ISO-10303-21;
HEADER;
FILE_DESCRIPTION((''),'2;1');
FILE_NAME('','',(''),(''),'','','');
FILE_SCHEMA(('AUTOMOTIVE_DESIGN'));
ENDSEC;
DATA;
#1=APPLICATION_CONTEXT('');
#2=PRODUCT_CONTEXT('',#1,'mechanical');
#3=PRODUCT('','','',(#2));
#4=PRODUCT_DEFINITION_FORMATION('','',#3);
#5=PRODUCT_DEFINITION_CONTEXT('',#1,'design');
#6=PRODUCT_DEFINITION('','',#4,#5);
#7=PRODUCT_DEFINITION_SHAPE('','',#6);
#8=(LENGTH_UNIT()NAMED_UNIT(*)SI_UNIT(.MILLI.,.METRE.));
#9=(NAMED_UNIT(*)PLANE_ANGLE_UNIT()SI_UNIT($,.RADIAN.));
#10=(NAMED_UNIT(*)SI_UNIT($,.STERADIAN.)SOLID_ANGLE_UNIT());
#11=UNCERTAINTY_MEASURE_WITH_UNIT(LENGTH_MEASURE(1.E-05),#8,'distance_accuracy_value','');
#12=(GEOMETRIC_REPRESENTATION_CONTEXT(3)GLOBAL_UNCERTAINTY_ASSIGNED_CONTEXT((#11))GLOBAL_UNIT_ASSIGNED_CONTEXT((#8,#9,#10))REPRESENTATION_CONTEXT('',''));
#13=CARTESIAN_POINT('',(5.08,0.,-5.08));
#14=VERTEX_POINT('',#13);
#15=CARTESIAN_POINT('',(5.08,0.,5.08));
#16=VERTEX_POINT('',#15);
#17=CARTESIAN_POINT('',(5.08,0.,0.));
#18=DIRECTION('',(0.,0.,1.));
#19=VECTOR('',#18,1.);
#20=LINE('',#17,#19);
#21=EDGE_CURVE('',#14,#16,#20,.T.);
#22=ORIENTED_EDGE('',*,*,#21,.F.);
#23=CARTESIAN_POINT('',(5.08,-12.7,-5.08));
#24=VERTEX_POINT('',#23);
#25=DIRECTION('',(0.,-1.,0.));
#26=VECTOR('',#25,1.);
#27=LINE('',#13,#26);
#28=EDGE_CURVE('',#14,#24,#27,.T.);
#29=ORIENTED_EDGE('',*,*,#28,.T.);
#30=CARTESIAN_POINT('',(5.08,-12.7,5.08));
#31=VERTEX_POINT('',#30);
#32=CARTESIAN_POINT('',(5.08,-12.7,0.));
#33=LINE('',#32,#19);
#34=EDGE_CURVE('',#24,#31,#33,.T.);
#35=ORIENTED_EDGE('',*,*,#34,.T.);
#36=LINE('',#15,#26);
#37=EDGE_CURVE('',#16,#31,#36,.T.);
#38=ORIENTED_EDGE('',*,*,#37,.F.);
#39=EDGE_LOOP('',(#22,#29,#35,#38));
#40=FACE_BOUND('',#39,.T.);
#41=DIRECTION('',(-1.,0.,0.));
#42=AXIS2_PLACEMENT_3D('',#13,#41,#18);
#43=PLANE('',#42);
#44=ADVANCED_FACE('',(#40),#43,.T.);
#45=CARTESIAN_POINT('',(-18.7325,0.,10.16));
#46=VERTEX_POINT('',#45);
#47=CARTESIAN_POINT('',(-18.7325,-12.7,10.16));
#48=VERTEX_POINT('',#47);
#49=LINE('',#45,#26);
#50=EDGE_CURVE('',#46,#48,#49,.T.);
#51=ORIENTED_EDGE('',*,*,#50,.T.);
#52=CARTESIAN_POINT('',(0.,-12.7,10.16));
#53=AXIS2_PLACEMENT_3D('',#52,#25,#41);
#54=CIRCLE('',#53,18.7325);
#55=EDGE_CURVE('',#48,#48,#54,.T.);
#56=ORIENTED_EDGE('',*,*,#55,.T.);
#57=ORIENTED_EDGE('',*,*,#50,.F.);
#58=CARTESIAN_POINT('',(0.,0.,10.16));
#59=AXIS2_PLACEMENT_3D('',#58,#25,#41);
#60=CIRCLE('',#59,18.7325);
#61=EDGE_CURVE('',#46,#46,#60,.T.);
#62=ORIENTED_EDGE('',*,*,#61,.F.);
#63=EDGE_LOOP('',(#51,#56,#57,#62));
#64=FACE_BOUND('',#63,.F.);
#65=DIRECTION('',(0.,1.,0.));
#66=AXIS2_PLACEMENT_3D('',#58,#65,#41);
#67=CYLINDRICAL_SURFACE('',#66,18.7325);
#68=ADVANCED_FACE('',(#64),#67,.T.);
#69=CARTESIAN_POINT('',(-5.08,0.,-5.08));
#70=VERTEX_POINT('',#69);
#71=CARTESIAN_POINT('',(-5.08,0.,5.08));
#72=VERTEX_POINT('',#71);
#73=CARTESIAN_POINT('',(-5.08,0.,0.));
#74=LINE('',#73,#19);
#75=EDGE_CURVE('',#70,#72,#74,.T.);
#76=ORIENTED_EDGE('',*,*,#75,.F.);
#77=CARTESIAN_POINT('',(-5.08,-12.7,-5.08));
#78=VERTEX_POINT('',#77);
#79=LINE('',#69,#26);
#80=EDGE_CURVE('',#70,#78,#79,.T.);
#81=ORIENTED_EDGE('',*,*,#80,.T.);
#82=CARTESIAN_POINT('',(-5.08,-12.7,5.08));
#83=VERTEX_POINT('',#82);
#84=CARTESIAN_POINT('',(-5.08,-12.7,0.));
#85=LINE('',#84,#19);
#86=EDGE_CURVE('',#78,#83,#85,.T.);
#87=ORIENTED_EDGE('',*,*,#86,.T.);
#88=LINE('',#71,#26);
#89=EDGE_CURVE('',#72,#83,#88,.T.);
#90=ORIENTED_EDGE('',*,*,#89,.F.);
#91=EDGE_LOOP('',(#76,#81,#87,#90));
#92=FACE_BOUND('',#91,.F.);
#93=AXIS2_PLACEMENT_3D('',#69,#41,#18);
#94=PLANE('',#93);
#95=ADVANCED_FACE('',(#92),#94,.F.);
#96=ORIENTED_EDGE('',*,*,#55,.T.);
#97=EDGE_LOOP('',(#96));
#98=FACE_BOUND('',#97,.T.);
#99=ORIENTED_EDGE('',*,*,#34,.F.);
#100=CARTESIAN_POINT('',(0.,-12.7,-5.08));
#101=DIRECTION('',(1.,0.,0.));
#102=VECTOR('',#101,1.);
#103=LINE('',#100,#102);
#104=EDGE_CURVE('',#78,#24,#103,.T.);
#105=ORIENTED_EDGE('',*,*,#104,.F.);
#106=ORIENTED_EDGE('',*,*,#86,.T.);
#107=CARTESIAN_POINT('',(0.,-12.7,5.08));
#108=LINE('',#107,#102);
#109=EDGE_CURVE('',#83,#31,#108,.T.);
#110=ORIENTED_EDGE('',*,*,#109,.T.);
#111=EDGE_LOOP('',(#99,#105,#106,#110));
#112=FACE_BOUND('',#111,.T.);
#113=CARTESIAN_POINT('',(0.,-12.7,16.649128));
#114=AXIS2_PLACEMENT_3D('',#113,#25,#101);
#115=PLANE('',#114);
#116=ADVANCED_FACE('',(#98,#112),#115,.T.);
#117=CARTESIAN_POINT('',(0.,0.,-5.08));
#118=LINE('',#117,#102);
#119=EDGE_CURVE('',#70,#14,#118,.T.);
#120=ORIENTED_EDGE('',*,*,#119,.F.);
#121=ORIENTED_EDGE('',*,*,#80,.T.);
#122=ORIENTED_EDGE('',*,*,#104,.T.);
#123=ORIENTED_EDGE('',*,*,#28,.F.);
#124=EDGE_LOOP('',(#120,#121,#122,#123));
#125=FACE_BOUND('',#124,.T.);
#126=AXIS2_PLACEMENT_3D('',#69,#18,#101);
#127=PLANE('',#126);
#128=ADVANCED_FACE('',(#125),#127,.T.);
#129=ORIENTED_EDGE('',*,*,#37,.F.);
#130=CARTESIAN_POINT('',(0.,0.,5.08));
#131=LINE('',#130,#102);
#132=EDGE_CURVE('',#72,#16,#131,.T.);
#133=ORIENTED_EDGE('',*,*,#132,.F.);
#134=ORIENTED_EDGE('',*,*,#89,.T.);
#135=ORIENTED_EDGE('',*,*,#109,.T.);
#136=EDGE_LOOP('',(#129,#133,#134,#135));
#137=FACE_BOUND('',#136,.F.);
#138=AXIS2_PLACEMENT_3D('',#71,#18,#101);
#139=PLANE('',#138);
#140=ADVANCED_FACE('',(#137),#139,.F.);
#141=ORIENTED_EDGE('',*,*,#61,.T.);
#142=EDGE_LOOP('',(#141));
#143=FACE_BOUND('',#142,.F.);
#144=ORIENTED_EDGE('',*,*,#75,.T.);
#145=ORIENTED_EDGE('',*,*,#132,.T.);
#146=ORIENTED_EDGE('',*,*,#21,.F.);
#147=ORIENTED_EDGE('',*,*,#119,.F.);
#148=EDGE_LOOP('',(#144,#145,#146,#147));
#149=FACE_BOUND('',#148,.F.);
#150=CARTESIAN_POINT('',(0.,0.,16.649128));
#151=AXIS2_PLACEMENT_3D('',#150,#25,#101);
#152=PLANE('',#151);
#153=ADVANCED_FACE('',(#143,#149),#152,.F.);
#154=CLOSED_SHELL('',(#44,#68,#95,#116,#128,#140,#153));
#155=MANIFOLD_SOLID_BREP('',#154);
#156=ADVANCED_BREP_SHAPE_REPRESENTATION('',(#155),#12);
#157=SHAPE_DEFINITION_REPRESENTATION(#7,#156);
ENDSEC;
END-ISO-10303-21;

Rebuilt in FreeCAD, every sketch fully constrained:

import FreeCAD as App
import Part
import Sketcher
Q = App.Units.Quantity


def add_polygon(sketch, points):
    """Adds a closed chain of lines whose ends are joined by coincident constraints."""
    first, n = sketch.GeometryCount, len(points)
    for a, b in zip(points, points[1:] + points[:1]):
        sketch.addGeometry(Part.LineSegment(App.Vector(*a, 0), App.Vector(*b, 0)), False)
    for i in range(n):
        sketch.addConstraint(Sketcher.Constraint("Coincident", first + i, 2, first + (i + 1) % n, 1))

doc = App.newDocument("Part")
params = doc.addObject("Spreadsheet::Sheet", "Params")
for row, (alias, value) in enumerate([
    ("sketch1_diameter", "1.475 in"),
    ("sketch1_width", "0.4 in"),
    ("pad1_length", "0.5 in"),
], start=1):
    params.set(f"A{row}", alias)
    params.set(f"B{row}", "=" + value)
    params.setAlias(f"B{row}", alias)

body = doc.addObject("PartDesign::Body", "Body")

sketch1 = body.newObject("Sketcher::SketchObject", "Sketch")
sketch1.AttachmentSupport = (doc.getObject("XZ_Plane"), [""])
sketch1.MapMode = "FlatFace"
sketch1.addGeometry(Part.Circle(App.Vector(0, 10.16, 0), App.Vector(0, 0, 1), 18.7325), False)
add_polygon(sketch1, [(5.08, -5.08), (-5.08, -5.08), (-5.08, 5.08), (5.08, 5.08)])
sketch1.addConstraint([
    Sketcher.Constraint("Horizontal", 1),
    Sketcher.Constraint("Vertical", 2),
    Sketcher.Constraint("Horizontal", 3),
    Sketcher.Constraint("Vertical", 4),
    Sketcher.Constraint("Symmetric", 1, 2, 3, 2, -1, 1),
    Sketcher.Constraint("PointOnObject", 0, 3, -2),
    Sketcher.Constraint("Equal", 3, 2),
    Sketcher.Constraint("Diameter", 0, Q("1.475 in")),
    Sketcher.Constraint("DistanceX", 1, 2, 1, 1, Q("0.4 in")),
    Sketcher.Constraint("DistanceY", -1, 1, 0, 3, Q("0.4 in")),
])
sketch1.setExpression("Constraints[11]", "Params.sketch1_diameter")
sketch1.setExpression("Constraints[12]", "Params.sketch1_width")
pad1 = body.newObject("PartDesign::Pad", "Pad")
pad1.Profile = sketch1
pad1.setExpression("Length", "Params.pad1_length")

doc.recompute()
